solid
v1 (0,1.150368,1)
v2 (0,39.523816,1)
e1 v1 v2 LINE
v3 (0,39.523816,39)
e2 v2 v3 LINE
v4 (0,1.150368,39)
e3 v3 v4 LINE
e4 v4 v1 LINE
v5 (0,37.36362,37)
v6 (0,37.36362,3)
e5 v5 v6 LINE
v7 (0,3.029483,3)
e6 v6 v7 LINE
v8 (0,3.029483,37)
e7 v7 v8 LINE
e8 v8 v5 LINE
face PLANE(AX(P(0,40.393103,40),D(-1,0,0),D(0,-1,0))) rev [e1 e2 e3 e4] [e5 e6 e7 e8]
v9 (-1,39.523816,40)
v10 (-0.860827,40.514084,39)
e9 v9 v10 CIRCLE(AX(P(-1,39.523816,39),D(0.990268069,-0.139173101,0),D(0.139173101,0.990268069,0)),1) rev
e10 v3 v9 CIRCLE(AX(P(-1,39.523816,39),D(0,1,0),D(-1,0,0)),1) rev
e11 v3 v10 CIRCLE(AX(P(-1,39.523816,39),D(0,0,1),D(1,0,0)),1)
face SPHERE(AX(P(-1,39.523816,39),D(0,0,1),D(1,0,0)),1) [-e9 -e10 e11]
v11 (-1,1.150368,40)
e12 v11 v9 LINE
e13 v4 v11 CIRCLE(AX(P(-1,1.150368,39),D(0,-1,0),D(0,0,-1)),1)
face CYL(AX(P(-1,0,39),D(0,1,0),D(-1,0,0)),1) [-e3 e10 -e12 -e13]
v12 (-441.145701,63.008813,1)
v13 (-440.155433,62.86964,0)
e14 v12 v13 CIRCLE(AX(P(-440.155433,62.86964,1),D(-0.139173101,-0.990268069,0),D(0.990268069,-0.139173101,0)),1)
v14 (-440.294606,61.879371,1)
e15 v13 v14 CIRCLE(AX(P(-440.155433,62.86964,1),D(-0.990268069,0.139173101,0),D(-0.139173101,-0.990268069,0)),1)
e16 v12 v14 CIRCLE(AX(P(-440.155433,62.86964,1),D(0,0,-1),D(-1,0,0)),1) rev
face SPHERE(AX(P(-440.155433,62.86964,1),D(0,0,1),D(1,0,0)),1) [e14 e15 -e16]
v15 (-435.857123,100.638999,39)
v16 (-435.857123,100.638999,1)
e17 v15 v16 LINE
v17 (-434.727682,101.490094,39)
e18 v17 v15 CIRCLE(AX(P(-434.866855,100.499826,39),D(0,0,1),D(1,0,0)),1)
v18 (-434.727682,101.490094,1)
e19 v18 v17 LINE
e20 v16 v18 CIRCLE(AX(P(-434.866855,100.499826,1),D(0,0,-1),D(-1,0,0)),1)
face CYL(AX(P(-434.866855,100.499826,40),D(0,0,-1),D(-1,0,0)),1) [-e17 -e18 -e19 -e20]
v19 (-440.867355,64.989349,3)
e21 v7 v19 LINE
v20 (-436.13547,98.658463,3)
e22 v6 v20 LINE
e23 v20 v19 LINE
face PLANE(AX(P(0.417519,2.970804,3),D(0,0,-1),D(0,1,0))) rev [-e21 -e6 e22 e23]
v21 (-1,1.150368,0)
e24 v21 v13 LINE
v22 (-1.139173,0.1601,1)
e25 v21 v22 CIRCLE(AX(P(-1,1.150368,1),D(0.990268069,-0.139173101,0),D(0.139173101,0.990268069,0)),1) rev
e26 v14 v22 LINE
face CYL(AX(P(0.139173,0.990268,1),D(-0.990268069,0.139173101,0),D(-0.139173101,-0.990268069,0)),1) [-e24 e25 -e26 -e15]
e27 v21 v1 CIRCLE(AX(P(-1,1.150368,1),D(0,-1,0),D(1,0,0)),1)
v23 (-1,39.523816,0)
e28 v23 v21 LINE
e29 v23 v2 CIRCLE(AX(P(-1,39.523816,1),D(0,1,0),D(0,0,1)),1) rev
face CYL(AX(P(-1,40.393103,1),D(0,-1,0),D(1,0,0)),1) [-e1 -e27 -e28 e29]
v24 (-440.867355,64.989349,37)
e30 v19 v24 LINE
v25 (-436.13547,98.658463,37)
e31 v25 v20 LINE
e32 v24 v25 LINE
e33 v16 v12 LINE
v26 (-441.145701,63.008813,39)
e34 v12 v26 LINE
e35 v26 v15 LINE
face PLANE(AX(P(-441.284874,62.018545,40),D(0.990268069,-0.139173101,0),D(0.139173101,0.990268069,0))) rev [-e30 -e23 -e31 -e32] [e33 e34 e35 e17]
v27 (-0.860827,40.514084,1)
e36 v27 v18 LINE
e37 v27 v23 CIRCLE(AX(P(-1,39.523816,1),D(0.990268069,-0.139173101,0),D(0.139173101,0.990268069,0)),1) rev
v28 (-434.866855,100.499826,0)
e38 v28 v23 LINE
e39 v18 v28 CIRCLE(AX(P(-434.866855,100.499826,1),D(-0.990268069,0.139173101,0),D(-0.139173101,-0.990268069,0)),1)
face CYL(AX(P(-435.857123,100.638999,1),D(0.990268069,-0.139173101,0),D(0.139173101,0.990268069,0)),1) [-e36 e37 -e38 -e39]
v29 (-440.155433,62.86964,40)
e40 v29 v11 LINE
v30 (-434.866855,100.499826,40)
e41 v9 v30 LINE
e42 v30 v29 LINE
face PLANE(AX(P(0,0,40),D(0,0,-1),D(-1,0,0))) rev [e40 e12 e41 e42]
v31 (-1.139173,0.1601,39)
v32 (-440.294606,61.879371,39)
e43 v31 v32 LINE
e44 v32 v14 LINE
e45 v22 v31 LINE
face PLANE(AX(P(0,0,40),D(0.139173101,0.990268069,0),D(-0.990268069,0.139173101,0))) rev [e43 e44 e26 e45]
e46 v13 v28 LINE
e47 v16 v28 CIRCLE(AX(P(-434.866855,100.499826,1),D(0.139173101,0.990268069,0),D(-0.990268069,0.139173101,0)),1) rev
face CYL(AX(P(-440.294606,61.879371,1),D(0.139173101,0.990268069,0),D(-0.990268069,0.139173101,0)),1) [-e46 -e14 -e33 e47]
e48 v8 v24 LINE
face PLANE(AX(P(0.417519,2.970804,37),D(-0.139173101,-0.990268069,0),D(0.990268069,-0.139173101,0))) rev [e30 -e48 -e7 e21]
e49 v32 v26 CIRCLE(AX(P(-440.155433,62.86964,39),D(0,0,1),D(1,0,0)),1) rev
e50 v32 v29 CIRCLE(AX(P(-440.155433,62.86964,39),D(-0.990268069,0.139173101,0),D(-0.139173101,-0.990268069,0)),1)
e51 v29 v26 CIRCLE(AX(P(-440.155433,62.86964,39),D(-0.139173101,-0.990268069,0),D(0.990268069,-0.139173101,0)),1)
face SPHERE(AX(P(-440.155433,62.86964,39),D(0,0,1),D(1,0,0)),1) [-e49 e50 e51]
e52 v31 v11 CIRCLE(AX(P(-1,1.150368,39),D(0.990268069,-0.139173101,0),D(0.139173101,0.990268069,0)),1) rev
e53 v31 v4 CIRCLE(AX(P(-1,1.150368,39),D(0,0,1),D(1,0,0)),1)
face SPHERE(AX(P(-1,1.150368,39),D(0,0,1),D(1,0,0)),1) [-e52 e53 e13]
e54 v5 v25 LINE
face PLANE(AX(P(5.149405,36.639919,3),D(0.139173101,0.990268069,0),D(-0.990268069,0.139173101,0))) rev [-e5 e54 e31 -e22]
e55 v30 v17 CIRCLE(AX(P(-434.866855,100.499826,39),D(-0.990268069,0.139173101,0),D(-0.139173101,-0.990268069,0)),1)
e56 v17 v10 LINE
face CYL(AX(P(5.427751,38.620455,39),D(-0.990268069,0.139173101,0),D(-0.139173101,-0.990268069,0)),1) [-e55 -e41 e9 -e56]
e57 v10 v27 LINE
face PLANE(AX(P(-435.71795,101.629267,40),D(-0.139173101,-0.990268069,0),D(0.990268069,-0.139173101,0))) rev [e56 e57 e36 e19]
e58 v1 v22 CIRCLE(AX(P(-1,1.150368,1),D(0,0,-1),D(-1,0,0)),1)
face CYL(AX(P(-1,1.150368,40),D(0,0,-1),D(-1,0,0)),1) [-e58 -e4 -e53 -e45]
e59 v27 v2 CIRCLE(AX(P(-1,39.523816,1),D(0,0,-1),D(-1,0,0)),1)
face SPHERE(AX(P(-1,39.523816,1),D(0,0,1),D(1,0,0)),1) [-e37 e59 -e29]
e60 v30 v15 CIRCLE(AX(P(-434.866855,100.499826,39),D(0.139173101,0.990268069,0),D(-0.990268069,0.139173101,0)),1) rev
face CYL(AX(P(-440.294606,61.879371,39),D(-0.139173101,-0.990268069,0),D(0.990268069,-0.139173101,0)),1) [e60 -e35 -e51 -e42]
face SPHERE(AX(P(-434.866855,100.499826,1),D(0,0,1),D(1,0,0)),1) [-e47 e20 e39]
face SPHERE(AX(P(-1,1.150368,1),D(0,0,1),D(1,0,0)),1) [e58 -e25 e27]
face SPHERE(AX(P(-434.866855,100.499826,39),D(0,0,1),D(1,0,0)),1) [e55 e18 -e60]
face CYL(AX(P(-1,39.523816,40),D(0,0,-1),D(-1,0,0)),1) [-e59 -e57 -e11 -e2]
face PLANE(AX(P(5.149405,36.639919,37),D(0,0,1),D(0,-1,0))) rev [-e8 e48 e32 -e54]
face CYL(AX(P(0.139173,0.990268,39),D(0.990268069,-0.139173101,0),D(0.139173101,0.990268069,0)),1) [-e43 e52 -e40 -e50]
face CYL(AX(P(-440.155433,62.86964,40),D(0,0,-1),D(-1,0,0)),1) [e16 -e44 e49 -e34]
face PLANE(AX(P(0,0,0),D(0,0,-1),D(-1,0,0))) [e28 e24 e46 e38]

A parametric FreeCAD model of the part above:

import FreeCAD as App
import Part
import Sketcher
from FreeCAD import Vector
Q = App.Units.Quantity


def edges_at(feature, points):
    """Names of the edges that pass closest to the given points."""
    edges = feature.Shape.Edges
    near = lambda p: min(range(len(edges)), key=lambda i: edges[i].distToShape(Part.Vertex(*p))[0])
    return sorted({f"Edge{near(p) + 1}" for p in points})


def add_polygon(sketch, points):
    """Adds a closed chain of lines whose ends are joined by coincident constraints."""
    first, n = sketch.GeometryCount, len(points)
    for a, b in zip(points, points[1:] + points[:1]):
        sketch.addGeometry(Part.LineSegment(App.Vector(*a, 0), App.Vector(*b, 0)), False)
    for i in range(n):
        sketch.addConstraint(Sketcher.Constraint("Coincident", first + i, 2, first + (i + 1) % n, 1))

doc = App.newDocument("Part")
params = doc.addObject("Spreadsheet::Sheet", "Params")
for row, (alias, value) in enumerate([
    ("sketch1_length", "440 mm"),
    ("sketch1_length2", "40 mm"),
    ("pad1_length", "40 mm"),
    ("sketch2_width", "34 mm"),
    ("fillet_radius", "1 mm"),
], start=1):
    params.set(f"A{row}", alias)
    params.set(f"B{row}", "=" + value)
    params.setAlias(f"B{row}", alias)

body = doc.addObject("PartDesign::Body", "Body")

# Sketch on XY plane
sketch1 = body.newObject("Sketcher::SketchObject", "Sketch")
sketch1.AttachmentSupport = (doc.getObject("XY_Plane"), [""])
sketch1.MapMode = "FlatFace"
add_polygon(sketch1, [(-441.284874, 62.018545), (0, 0), (0, 40.393103), (-435.71795, 101.629267)])  # lines 0-3
sketch1.addConstraint([
    Sketcher.Constraint("Vertical", 1),
    Sketcher.Constraint("Coincident", 0, 2, -1, 1),
    Sketcher.Constraint("Parallel", 0, 2),
    Sketcher.Constraint("Perpendicular", 2, 3),
    Sketcher.Constraint("Angle", 0, Q("-8 deg")),
    Sketcher.Constraint("Distance", 2, Q("440 mm")),
    Sketcher.Constraint("Distance", 3, Q("40 mm")),
])
sketch1.setExpression("Constraints[9]", "Params.sketch1_length")
sketch1.setExpression("Constraints[10]", "Params.sketch1_length2")
pad1 = body.newObject("PartDesign::Pad", "Pad")
pad1.Profile = sketch1
pad1.setExpression("Length", "Params.pad1_length")

# Sketch on an angled plane
sketch2 = body.newObject("Sketcher::SketchObject", "Sketch001")
sketch2.Placement = App.Placement(Vector(-441.284874, 62.018545, 0), App.Rotation(Vector(0, 0, 1), Vector(0.139173101, 0.990268069, 0), Vector(-0.990268069, 0.139173101, 0), "ZXY"))
add_polygon(sketch2, [(3, 37), (3, 3), (37, 3), (37, 37)])  # lines 0-3
sketch2.addConstraint([
    Sketcher.Constraint("Vertical", 0),
    Sketcher.Constraint("Horizontal", 1),
    Sketcher.Constraint("Vertical", 2),
    Sketcher.Constraint("Horizontal", 3),
    Sketcher.Constraint("Equal", 3, 0),
    Sketcher.Constraint("DistanceX", 1, 1, 1, 2, Q("34 mm")),
    Sketcher.Constraint("DistanceX", -1, 1, 0, 2, Q("3 mm")),
    Sketcher.Constraint("DistanceY", -1, 1, 0, 2, Q("3 mm")),
])
sketch2.setExpression("Constraints[9]", "Params.sketch2_width")
pocket1 = body.newObject("PartDesign::Pocket", "Pocket")
pocket1.Profile = sketch2
pocket1.Type = "ThroughAll"
doc.recompute()

fillet = body.newObject("PartDesign::Fillet", "Fillet")
fillet.Base = (pocket1, edges_at(pocket1, [
    (-438.501, 81.824, 40),
    (-220.642, 31.009, 40),
    (0, 20.197, 40),
    (-220.642, 31.009, 0),
    (-438.501, 81.824, 0),
    (-217.859, 71.011, 0),
    (0, 20.197, 0),
    (-217.859, 71.011, 40),
    (0, 0, 20),
    (-441.285, 62.019, 20),
    (-435.718, 101.629, 20),
    (0, 40.393, 20),
]))
fillet.setExpression("Radius", "Params.fillet_radius")

doc.recompute()
